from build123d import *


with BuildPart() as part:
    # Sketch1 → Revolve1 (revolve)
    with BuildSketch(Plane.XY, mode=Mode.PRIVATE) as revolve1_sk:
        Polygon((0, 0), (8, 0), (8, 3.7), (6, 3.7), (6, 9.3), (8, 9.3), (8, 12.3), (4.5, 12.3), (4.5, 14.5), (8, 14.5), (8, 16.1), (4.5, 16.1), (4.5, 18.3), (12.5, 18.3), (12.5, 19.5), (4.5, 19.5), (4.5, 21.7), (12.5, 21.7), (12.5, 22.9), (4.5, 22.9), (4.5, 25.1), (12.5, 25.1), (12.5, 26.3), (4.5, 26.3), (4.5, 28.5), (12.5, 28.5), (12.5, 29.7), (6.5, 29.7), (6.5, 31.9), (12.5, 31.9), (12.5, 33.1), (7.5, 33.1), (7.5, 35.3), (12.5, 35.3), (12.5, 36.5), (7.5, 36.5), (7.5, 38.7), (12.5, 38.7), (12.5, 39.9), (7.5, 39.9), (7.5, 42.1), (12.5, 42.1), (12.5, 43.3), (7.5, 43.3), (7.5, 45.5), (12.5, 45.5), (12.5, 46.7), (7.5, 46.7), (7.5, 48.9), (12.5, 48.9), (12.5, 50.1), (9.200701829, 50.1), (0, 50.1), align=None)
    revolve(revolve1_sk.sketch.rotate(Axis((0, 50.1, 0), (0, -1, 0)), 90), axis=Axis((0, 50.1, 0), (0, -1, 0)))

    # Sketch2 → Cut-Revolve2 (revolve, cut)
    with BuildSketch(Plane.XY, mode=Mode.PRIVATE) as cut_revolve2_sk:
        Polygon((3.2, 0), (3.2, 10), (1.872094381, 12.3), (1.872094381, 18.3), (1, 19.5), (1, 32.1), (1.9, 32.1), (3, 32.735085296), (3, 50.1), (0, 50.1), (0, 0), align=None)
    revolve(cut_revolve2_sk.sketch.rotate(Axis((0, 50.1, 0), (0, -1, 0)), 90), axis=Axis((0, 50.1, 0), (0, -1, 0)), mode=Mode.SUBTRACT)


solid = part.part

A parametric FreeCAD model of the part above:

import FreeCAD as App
import Part
import Sketcher
Q = App.Units.Quantity


def add_polygon(sketch, points):
    """Adds a closed chain of lines whose ends are joined by coincident constraints."""
    first, n = sketch.GeometryCount, len(points)
    for a, b in zip(points, points[1:] + points[:1]):
        sketch.addGeometry(Part.LineSegment(App.Vector(*a, 0), App.Vector(*b, 0)), False)
    for i in range(n):
        sketch.addConstraint(Sketcher.Constraint("Coincident", first + i, 2, first + (i + 1) % n, 1))

doc = App.newDocument("Part")
body = doc.addObject("PartDesign::Body", "Body")

sketch1 = doc.addObject("Sketcher::SketchObject", "Sketch")
body.addObject(sketch1)
sketch1.AttachmentSupport = (doc.XY_Plane, [""])
sketch1.MapMode = "FlatFace"
add_polygon(sketch1, [(0, 0), (8, 0), (8, 3.7), (6, 3.7), (6, 9.3), (8, 9.3), (8, 12.3), (4.5, 12.3), (4.5, 14.5), (8, 14.5), (8, 16.1), (4.5, 16.1), (4.5, 18.3), (12.5, 18.3), (12.5, 19.5), (4.5, 19.5), (4.5, 21.7), (12.5, 21.7), (12.5, 22.9), (4.5, 22.9), (4.5, 25.1), (12.5, 25.1), (12.5, 26.3), (4.5, 26.3), (4.5, 28.5), (12.5, 28.5), (12.5, 29.7), (6.5, 29.7), (6.5, 31.9), (12.5, 31.9), (12.5, 33.1), (7.5, 33.1), (7.5, 35.3), (12.5, 35.3), (12.5, 36.5), (7.5, 36.5), (7.5, 38.7), (12.5, 38.7), (12.5, 39.9), (7.5, 39.9), (7.5, 42.1), (12.5, 42.1), (12.5, 43.3), (7.5, 43.3), (7.5, 45.5), (12.5, 45.5), (12.5, 46.7), (7.5, 46.7), (7.5, 48.9), (12.5, 48.9), (12.5, 50.1), (0, 50.1)])
sketch1.addConstraint([
    Sketcher.Constraint("Horizontal", 0),
    Sketcher.Constraint("Vertical", 1),
    Sketcher.Constraint("Horizontal", 2),
    Sketcher.Constraint("Vertical", 3),
    Sketcher.Constraint("Horizontal", 4),
    Sketcher.Constraint("Vertical", 5),
    Sketcher.Constraint("Horizontal", 6),
    Sketcher.Constraint("Vertical", 7),
    Sketcher.Constraint("Horizontal", 8),
    Sketcher.Constraint("Vertical", 9),
    Sketcher.Constraint("Horizontal", 10),
    Sketcher.Constraint("Vertical", 11),
    Sketcher.Constraint("Horizontal", 12),
    Sketcher.Constraint("Vertical", 13),
    Sketcher.Constraint("Horizontal", 14),
    Sketcher.Constraint("Vertical", 15),
    Sketcher.Constraint("Horizontal", 16),
    Sketcher.Constraint("Vertical", 17),
    Sketcher.Constraint("Horizontal", 18),
    Sketcher.Constraint("Vertical", 19),
    Sketcher.Constraint("Horizontal", 20),
    Sketcher.Constraint("Vertical", 21),
    Sketcher.Constraint("Horizontal", 22),
    Sketcher.Constraint("Vertical", 23),
    Sketcher.Constraint("Horizontal", 24),
    Sketcher.Constraint("Vertical", 25),
    Sketcher.Constraint("Horizontal", 26),
    Sketcher.Constraint("Vertical", 27),
    Sketcher.Constraint("Horizontal", 28),
    Sketcher.Constraint("Vertical", 29),
    Sketcher.Constraint("Horizontal", 30),
    Sketcher.Constraint("Vertical", 31),
    Sketcher.Constraint("Horizontal", 32),
    Sketcher.Constraint("Vertical", 33),
    Sketcher.Constraint("Horizontal", 34),
    Sketcher.Constraint("Vertical", 35),
    Sketcher.Constraint("Horizontal", 36),
    Sketcher.Constraint("Vertical", 37),
    Sketcher.Constraint("Horizontal", 38),
    Sketcher.Constraint("Vertical", 39),
    Sketcher.Constraint("Horizontal", 40),
    Sketcher.Constraint("Vertical", 41),
    Sketcher.Constraint("Horizontal", 42),
    Sketcher.Constraint("Vertical", 43),
    Sketcher.Constraint("Horizontal", 44),
    Sketcher.Constraint("Vertical", 45),
    Sketcher.Constraint("Horizontal", 46),
    Sketcher.Constraint("Vertical", 47),
    Sketcher.Constraint("Horizontal", 48),
    Sketcher.Constraint("Vertical", 49),
    Sketcher.Constraint("Horizontal", 50),
    Sketcher.Constraint("Vertical", 51),
    Sketcher.Constraint("Coincident", 51, 2, -1, 1),
    Sketcher.Constraint("Vertical", 1, 2, 4, 2),
    Sketcher.Constraint("Vertical", 5, 2, 8, 2),
    Sketcher.Constraint("Vertical", 7, 2, 10, 2),
    Sketcher.Constraint("Vertical", 11, 2, 14, 2),
    Sketcher.Constraint("Vertical", 13, 2, 16, 2),
    Sketcher.Constraint("Vertical", 15, 2, 18, 2),
    Sketcher.Constraint("Vertical", 17, 2, 20, 2),
    Sketcher.Constraint("Vertical", 19, 2, 22, 2),
    Sketcher.Constraint("Vertical", 21, 2, 24, 2),
    Sketcher.Constraint("Vertical", 25, 2, 28, 2),
    Sketcher.Constraint("Vertical", 29, 2, 32, 2),
    Sketcher.Constraint("Vertical", 31, 2, 34, 2),
    Sketcher.Constraint("Vertical", 33, 2, 36, 2),
    Sketcher.Constraint("Vertical", 35, 2, 38, 2),
    Sketcher.Constraint("Vertical", 37, 2, 40, 2),
    Sketcher.Constraint("Vertical", 39, 2, 42, 2),
    Sketcher.Constraint("Vertical", 41, 2, 44, 2),
    Sketcher.Constraint("Vertical", 43, 2, 46, 2),
    Sketcher.Constraint("Vertical", 45, 2, 48, 2),
    Sketcher.Constraint("Equal", 0, 12),
    Sketcher.Constraint("Equal", 7, 11),
    Sketcher.Constraint("Equal", 11, 15),
    Sketcher.Constraint("Equal", 13, 17),
    Sketcher.Constraint("Equal", 15, 19),
    Sketcher.Constraint("Equal", 17, 21),
    Sketcher.Constraint("Equal", 19, 23),
    Sketcher.Constraint("Equal", 21, 25),
    Sketcher.Constraint("Equal", 23, 27),
    Sketcher.Constraint("Equal", 25, 29),
    Sketcher.Constraint("Equal", 27, 31),
    Sketcher.Constraint("Equal", 29, 33),
    Sketcher.Constraint("Equal", 31, 35),
    Sketcher.Constraint("Equal", 33, 37),
    Sketcher.Constraint("Equal", 35, 39),
    Sketcher.Constraint("Equal", 37, 41),
    Sketcher.Constraint("Equal", 39, 43),
    Sketcher.Constraint("Equal", 41, 45),
    Sketcher.Constraint("Equal", 43, 47),
    Sketcher.Constraint("Equal", 45, 49),
    Sketcher.Constraint("DistanceX", 0, 1, 0, 2, Q("8 mm")),
    Sketcher.Constraint("DistanceX", 2, 2, 2, 1, Q("2 mm")),
    Sketcher.Constraint("DistanceX", 26, 2, 26, 1, Q("6 mm")),
    Sketcher.Constraint("DistanceX", 30, 2, 30, 1, Q("5 mm")),
    Sketcher.Constraint("DistanceY", 5, 1, 5, 2, Q("3 mm")),
    Sketcher.Constraint("DistanceX", 6, 2, 6, 1, Q("3.5 mm")),
    Sketcher.Constraint("DistanceY", 1, 1, 1, 2, Q("3.7 mm")),
    Sketcher.Constraint("DistanceY", 3, 1, 3, 2, Q("5.6 mm")),
    Sketcher.Constraint("DistanceY", 7, 1, 7, 2, Q("2.2 mm")),
    Sketcher.Constraint("DistanceY", 9, 1, 9, 2, Q("1.6 mm")),
    Sketcher.Constraint("DistanceY", 13, 1, 13, 2, Q("1.2 mm")),
])
revolution = doc.addObject("PartDesign::Revolution", "Revolution")
body.addObject(revolution)
revolution.Profile = sketch1
revolution.ReferenceAxis = (sketch1, ["V_Axis"])
revolution.Angle = 360

sketch2 = doc.addObject("Sketcher::SketchObject", "Sketch001")
body.addObject(sketch2)
sketch2.AttachmentSupport = (doc.XY_Plane, [""])
sketch2.MapMode = "FlatFace"
add_polygon(sketch2, [(3.2, 0), (3.2, 10), (1.9, 12.3), (1.9, 18.3), (1, 19.5), (1, 32.1), (1.9, 32.1), (3, 32.7), (3, 50.1), (0, 50.1), (0, 0)])
sketch2.addConstraint([
    Sketcher.Constraint("Vertical", 0),
    Sketcher.Constraint("Vertical", 2),
    Sketcher.Constraint("Vertical", 4),
    Sketcher.Constraint("Horizontal", 5),
    Sketcher.Constraint("Vertical", 7),
    Sketcher.Constraint("Horizontal", 8),
    Sketcher.Constraint("Vertical", 9),
    Sketcher.Constraint("Horizontal", 10),
    Sketcher.Constraint("Coincident", 9, 2, -1, 1),
    Sketcher.Constraint("Perpendicular", 1, 6),
    Sketcher.Constraint("DistanceX", 8, 2, 8, 1, Q("3 mm")),
    Sketcher.Constraint("DistanceY", 0, 1, 0, 2, Q("10 mm")),
    Sketcher.Constraint("DistanceY", 2, 1, 2, 2, Q("6 mm")),
    Sketcher.Constraint("Angle", 1, Q("120 deg")),
    Sketcher.Constraint("DistanceX", 5, 1, 5, 2, Q("0.9 mm")),
    Sketcher.Constraint("DistanceX", 10, 1, 10, 2, Q("3.2 mm")),
    Sketcher.Constraint("DistanceY", 4, 1, 4, 2, Q("12.6 mm")),
    Sketcher.Constraint("DistanceY", 9, 2, 9, 1, Q("50.1 mm")),
    Sketcher.Constraint("DistanceX", -1, 1, 3, 2, Q("1 mm")),
    Sketcher.Constraint("DistanceY", 5, 2, 7, 2, Q("18 mm")),
    Sketcher.Constraint("DistanceY", -1, 1, 1, 2, Q("12.3 mm")),
])
groove = doc.addObject("PartDesign::Groove", "Groove")
body.addObject(groove)
groove.Profile = sketch2
groove.ReferenceAxis = (sketch2, ["V_Axis"])
groove.Angle = 360

doc.recompute()
